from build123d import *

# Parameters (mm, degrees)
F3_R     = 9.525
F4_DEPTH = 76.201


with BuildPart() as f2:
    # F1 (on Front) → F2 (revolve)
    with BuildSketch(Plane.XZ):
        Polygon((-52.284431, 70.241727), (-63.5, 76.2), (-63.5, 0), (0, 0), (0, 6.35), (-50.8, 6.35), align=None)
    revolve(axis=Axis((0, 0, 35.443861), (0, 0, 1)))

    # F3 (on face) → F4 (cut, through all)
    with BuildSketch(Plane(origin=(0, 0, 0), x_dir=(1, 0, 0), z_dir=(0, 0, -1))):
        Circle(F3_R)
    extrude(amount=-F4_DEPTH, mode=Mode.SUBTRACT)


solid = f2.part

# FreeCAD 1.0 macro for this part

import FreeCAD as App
import Part
import Sketcher
from FreeCAD import Vector
Q = App.Units.Quantity


def add_polygon(sketch, points):
    """Adds a closed chain of lines whose ends are joined by coincident constraints."""
    first, n = sketch.GeometryCount, len(points)
    for a, b in zip(points, points[1:] + points[:1]):
        sketch.addGeometry(Part.LineSegment(App.Vector(*a, 0), App.Vector(*b, 0)), False)
    for i in range(n):
        sketch.addConstraint(Sketcher.Constraint("Coincident", first + i, 2, first + (i + 1) % n, 1))

doc = App.newDocument("Part")
params = doc.addObject("Spreadsheet::Sheet", "Params")
for row, (alias, value) in enumerate([
    ("sketch1_width", "2 in"),
    ("sketch1_height", "3 in"),
    ("sketch1_width2", "2.5 in"),
    ("sketch1_length", "0.5 in"),
    ("sketch1_height2", "0.25 in"),
    ("revolution_angle", "360 deg"),
    ("sketch2_diameter", "0.75 in"),
], start=1):
    params.set(f"A{row}", alias)
    params.set(f"B{row}", "=" + value)
    params.setAlias(f"B{row}", alias)

body = doc.addObject("PartDesign::Body", "Body")

sketch1 = body.newObject("Sketcher::SketchObject", "Sketch")
sketch1.AttachmentSupport = (doc.getObject("XZ_Plane"), [""])
sketch1.MapMode = "FlatFace"
add_polygon(sketch1, [(-52, 70), (-64, 76), (-64, 0), (0, 0), (0, 6), (-51, 6)])
sketch1.addConstraint([
    Sketcher.Constraint("Vertical", 1),
    Sketcher.Constraint("Horizontal", 2),
    Sketcher.Constraint("Vertical", 3),
    Sketcher.Constraint("Horizontal", 4),
    Sketcher.Constraint("Coincident", 2, 2, -1, 1),
    Sketcher.Constraint("DistanceX", 4, 2, 4, 1, Q("2 in")),
    Sketcher.Constraint("DistanceY", 1, 2, 1, 1, Q("3 in")),
    Sketcher.Constraint("DistanceX", 2, 1, 2, 2, Q("2.5 in")),
    Sketcher.Constraint("Distance", 0, Q("0.5 in")),
    Sketcher.Constraint("DistanceY", 3, 1, 3, 2, Q("0.25 in")),
    Sketcher.Constraint("Distance", 5, Q("63.908969 mm")),
])
sketch1.setExpression("Constraints[11]", "Params.sketch1_width")
sketch1.setExpression("Constraints[12]", "Params.sketch1_height")
sketch1.setExpression("Constraints[13]", "Params.sketch1_width2")
sketch1.setExpression("Constraints[14]", "Params.sketch1_length")
sketch1.setExpression("Constraints[15]", "Params.sketch1_height2")
revolution = body.newObject("PartDesign::Revolution", "Revolution")
revolution.Profile = sketch1
revolution.ReferenceAxis = (sketch1, ["V_Axis"])
revolution.setExpression("Angle", "Params.revolution_angle")

sketch2 = body.newObject("Sketcher::SketchObject", "Sketch001")
sketch2.AttachmentSupport = (doc.getObject("XY_Plane"), [""])
sketch2.MapMode = "FlatFace"
sketch2.addGeometry(Part.Circle(Vector(0, 0, 0), Vector(0, 0, 1), 10), False)
sketch2.addConstraint([
    Sketcher.Constraint("Coincident", 0, 3, -1, 1),
    Sketcher.Constraint("Diameter", 0, Q("0.75 in")),
])
sketch2.setExpression("Constraints[1]", "Params.sketch2_diameter")
pocket1 = body.newObject("PartDesign::Pocket", "Pocket")
pocket1.Profile = sketch2
pocket1.Type = "ThroughAll"
pocket1.Reversed = True

doc.recompute()
